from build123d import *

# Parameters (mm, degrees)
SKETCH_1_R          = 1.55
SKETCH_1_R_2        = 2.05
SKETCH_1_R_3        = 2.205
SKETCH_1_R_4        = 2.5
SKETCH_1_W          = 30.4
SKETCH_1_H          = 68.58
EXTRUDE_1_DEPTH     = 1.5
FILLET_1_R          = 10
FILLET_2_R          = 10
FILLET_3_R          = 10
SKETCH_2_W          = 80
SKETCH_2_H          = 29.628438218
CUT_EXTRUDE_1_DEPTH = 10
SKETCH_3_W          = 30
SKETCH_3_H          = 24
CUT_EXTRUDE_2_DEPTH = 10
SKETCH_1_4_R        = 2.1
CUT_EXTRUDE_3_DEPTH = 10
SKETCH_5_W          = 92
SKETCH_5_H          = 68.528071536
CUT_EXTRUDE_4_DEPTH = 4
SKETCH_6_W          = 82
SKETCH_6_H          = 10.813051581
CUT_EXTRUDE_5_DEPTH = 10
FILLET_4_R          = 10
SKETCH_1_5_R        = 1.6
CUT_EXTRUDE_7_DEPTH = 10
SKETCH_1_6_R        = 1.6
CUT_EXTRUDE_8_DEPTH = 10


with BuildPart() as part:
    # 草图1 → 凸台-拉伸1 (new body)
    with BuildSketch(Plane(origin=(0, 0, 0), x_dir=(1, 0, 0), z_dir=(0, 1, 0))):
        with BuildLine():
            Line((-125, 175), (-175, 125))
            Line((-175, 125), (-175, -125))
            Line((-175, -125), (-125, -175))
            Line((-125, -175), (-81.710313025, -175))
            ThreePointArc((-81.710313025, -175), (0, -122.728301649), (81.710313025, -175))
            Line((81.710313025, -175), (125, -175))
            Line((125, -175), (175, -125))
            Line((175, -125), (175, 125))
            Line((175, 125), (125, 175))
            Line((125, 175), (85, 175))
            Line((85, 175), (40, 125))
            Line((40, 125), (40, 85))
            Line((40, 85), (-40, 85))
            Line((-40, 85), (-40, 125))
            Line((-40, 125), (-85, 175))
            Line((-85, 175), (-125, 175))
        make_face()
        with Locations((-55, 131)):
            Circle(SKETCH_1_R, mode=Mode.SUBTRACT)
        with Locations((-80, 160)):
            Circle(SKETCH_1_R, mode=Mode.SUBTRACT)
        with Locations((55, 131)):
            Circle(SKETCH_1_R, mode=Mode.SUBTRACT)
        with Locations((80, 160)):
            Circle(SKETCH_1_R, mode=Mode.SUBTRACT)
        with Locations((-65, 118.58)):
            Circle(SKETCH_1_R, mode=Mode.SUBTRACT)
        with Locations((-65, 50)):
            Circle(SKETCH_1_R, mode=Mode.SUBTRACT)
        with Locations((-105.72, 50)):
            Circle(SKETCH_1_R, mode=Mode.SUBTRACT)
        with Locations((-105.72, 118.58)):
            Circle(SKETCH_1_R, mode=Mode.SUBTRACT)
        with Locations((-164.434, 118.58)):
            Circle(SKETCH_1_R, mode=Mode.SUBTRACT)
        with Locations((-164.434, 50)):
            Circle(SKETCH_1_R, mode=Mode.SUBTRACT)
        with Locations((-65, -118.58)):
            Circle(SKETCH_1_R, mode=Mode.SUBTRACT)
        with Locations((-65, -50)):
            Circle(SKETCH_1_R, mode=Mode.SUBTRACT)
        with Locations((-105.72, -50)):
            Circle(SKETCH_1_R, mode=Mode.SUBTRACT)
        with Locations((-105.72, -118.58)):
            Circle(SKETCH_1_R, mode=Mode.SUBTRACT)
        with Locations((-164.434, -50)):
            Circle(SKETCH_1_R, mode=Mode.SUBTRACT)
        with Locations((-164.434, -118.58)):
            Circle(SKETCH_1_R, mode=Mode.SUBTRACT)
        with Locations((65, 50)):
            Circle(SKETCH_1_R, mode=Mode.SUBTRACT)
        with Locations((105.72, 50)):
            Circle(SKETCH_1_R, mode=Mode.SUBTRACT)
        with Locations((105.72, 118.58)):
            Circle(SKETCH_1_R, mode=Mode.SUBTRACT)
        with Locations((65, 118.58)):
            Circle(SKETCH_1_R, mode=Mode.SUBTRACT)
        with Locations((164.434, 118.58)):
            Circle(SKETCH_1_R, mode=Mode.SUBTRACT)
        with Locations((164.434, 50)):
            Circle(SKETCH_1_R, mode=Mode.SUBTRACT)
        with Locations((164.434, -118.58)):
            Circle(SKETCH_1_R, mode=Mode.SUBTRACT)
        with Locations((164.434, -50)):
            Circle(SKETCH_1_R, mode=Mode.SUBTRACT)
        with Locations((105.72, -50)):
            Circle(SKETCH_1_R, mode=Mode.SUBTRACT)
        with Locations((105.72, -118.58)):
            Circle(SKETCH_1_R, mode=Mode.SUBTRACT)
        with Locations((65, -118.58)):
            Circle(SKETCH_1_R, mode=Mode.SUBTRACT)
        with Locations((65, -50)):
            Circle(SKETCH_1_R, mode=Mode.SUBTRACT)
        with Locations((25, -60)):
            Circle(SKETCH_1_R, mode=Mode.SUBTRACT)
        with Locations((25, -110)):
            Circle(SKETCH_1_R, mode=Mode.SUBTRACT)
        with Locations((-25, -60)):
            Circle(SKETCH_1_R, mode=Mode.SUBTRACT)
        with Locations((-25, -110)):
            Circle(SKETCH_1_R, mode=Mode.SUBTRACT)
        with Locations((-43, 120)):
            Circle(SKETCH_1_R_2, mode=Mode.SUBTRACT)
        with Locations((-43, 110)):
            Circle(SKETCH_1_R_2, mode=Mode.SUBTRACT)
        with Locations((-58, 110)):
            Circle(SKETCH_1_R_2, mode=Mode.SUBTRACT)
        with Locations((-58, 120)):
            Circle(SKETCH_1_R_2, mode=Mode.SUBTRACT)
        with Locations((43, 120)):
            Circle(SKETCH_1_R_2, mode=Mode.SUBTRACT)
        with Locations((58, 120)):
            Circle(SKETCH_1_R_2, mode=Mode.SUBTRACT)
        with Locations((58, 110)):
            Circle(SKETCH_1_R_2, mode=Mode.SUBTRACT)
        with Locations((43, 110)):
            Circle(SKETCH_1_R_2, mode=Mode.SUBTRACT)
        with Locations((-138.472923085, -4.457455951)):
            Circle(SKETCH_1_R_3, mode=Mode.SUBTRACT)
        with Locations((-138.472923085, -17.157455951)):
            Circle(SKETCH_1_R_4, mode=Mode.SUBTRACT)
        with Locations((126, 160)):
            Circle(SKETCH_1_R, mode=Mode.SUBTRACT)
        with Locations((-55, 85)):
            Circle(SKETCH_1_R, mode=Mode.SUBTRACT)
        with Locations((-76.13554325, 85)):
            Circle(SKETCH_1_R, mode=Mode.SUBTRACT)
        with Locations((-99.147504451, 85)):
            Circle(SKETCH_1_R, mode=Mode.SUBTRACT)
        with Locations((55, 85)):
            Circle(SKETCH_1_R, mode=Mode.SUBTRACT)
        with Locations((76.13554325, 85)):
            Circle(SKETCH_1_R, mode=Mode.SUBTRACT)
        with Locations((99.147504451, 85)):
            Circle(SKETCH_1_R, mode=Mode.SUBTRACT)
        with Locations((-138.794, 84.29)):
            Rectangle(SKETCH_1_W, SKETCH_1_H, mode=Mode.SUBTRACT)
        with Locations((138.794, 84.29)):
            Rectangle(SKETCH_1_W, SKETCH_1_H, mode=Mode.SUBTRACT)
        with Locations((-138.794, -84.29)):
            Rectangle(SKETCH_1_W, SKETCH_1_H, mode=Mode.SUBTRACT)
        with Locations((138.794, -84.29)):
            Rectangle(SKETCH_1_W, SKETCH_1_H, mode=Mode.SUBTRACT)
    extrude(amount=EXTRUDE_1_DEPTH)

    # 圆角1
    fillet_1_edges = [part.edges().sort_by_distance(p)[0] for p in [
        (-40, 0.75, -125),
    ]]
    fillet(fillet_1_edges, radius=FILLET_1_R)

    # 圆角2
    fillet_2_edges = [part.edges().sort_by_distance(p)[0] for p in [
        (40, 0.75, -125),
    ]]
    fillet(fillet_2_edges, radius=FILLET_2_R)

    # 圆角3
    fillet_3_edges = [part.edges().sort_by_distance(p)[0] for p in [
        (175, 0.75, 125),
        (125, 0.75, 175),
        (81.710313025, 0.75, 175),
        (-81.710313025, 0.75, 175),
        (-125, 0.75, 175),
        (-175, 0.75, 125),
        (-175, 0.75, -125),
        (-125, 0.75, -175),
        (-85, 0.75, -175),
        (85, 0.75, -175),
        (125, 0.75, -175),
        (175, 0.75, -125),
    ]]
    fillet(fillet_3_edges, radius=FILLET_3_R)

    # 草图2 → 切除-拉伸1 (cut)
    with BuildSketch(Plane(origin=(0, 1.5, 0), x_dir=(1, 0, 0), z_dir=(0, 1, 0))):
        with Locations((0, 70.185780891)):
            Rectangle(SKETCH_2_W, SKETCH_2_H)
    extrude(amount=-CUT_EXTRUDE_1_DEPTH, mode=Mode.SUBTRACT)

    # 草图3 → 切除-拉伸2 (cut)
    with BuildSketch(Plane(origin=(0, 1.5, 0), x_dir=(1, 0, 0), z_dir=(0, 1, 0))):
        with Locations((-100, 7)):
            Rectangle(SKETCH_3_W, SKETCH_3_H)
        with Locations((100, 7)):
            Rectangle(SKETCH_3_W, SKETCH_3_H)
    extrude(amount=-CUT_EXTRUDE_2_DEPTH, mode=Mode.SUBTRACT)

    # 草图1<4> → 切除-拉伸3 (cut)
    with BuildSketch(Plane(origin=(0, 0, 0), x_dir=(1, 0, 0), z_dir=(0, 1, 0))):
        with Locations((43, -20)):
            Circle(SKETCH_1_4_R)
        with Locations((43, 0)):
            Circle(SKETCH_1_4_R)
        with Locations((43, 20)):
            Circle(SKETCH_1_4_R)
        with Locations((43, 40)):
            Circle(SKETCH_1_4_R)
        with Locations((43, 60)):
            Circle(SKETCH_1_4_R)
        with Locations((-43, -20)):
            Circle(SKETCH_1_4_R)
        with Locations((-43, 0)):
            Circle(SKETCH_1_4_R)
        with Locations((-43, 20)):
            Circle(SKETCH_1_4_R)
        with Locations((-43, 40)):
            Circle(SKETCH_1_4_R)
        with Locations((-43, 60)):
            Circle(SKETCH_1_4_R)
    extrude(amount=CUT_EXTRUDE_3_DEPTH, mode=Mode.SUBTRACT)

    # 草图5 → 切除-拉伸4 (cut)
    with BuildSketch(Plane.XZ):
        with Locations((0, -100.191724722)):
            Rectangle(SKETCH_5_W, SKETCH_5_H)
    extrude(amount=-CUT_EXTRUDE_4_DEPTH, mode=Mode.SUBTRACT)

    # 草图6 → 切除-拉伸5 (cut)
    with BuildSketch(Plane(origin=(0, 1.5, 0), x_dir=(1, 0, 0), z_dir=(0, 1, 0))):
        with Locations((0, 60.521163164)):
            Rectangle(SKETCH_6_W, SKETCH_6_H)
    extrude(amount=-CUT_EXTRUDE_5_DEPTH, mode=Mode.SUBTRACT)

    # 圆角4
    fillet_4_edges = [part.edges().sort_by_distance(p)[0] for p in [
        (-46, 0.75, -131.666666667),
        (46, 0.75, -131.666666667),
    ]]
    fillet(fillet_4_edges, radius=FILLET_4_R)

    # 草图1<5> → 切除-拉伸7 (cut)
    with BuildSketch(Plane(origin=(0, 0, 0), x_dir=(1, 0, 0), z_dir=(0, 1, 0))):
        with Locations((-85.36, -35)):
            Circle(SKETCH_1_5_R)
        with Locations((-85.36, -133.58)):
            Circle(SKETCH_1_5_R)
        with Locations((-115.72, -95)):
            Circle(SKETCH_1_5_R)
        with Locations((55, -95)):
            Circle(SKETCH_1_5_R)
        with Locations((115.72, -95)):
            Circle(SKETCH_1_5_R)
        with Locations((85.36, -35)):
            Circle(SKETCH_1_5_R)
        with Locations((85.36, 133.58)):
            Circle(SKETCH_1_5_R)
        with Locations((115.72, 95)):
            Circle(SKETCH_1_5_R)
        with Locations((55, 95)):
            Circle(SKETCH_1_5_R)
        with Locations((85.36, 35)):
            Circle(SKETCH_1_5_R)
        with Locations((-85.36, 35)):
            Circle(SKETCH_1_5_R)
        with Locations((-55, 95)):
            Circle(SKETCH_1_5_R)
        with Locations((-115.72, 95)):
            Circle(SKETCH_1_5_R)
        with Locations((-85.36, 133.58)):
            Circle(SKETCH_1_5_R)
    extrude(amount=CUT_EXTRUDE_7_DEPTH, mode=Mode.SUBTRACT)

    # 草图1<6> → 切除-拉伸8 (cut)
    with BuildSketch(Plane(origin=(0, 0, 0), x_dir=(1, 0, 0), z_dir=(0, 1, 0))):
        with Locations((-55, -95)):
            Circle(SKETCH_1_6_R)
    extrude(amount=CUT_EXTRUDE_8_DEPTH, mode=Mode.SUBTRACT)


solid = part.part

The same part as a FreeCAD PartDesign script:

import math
import FreeCAD as App
import Part
import Sketcher

V = App.Vector


def edges_at(feature, points):
    """Names of the edges that pass closest to the given points."""
    edges = feature.Shape.Edges
    near = lambda p: min(range(len(edges)), key=lambda i: edges[i].distToShape(Part.Vertex(*p))[0])
    return sorted({f"Edge{near(p) + 1}" for p in points})


def add_polygon(sketch, points):
    """Adds a closed chain of lines whose ends are joined by coincident constraints."""
    first, n = sketch.GeometryCount, len(points)
    for a, b in zip(points, points[1:] + points[:1]):
        sketch.addGeometry(Part.LineSegment(App.Vector(*a, 0), App.Vector(*b, 0)), False)
    for i in range(n):
        sketch.addConstraint(Sketcher.Constraint("Coincident", first + i, 2, first + (i + 1) % n, 1))

doc = App.newDocument("Part")
body = doc.addObject("PartDesign::Body", "Body")

# Sketch on XZ plane
sketch1 = body.newObject("Sketcher::SketchObject", "Sketch")
sketch1.AttachmentSupport = (doc.getObject("XZ_Plane"), [""])
sketch1.MapMode = "FlatFace"
sketch1.addGeometry(Part.LineSegment(V(-125, -175, 0), V(-175, -125, 0)), False)  # 0
sketch1.addGeometry(Part.LineSegment(V(-175, -125, 0), V(-175, 125, 0)), False)  # 1
sketch1.addGeometry(Part.LineSegment(V(-175, 125, 0), V(-125, 175, 0)), False)  # 2
sketch1.addGeometry(Part.LineSegment(V(-125, 175, 0), V(-81.7, 175, 0)), False)  # 3
sketch1.addGeometry(Part.ArcOfCircle(Part.Circle(V(0, 212.7, 0), V(0, 0, 1), 90), math.radians(-155), math.radians(-25)), False)  # 4
sketch1.addGeometry(Part.LineSegment(V(81.7, 175, 0), V(125, 175, 0)), False)  # 5
sketch1.addGeometry(Part.LineSegment(V(125, 175, 0), V(175, 125, 0)), False)  # 6
sketch1.addGeometry(Part.LineSegment(V(175, 125, 0), V(175, -125, 0)), False)  # 7
sketch1.addGeometry(Part.LineSegment(V(175, -125, 0), V(125, -175, 0)), False)  # 8
sketch1.addGeometry(Part.LineSegment(V(125, -175, 0), V(85, -175, 0)), False)  # 9
sketch1.addGeometry(Part.LineSegment(V(85, -175, 0), V(40, -125, 0)), False)  # 10
sketch1.addGeometry(Part.LineSegment(V(40, -125, 0), V(40, -85, 0)), False)  # 11
sketch1.addGeometry(Part.LineSegment(V(40, -85, 0), V(-40, -85, 0)), False)  # 12
sketch1.addGeometry(Part.LineSegment(V(-40, -85, 0), V(-40, -125, 0)), False)  # 13
sketch1.addGeometry(Part.LineSegment(V(-40, -125, 0), V(-85, -175, 0)), False)  # 14
sketch1.addGeometry(Part.LineSegment(V(-85, -175, 0), V(-125, -175, 0)), False)  # 15
sketch1.addGeometry(Part.Circle(V(-164.4, 118.6, 0), V(0, 0, 1), 1.6), False)  # 16
sketch1.addGeometry(Part.Circle(V(-105.7, 118.6, 0), V(0, 0, 1), 1.6), False)  # 17
add_polygon(sketch1, [(-123.6, 118.6), (-154, 118.6), (-154, 50), (-123.6, 50)])  # lines 18-21
sketch1.addGeometry(Part.Circle(V(-164.4, 50, 0), V(0, 0, 1), 1.6), False)  # 22
sketch1.addGeometry(Part.Circle(V(-105.7, 50, 0), V(0, 0, 1), 1.6), False)  # 23
sketch1.addGeometry(Part.Circle(V(-65, 118.6, 0), V(0, 0, 1), 1.6), False)  # 24
sketch1.addGeometry(Part.Circle(V(-25, 110, 0), V(0, 0, 1), 1.6), False)  # 25
sketch1.addGeometry(Part.Circle(V(-65, 50, 0), V(0, 0, 1), 1.6), False)  # 26
sketch1.addGeometry(Part.Circle(V(-25, 60, 0), V(0, 0, 1), 1.6), False)  # 27
sketch1.addGeometry(Part.Circle(V(-138.5, 17.2, 0), V(0, 0, 1), 2.5), False)  # 28
sketch1.addGeometry(Part.Circle(V(-138.5, 4.5, 0), V(0, 0, 1), 2.2), False)  # 29
sketch1.addGeometry(Part.Circle(V(25, 110, 0), V(0, 0, 1), 1.6), False)  # 30
sketch1.addGeometry(Part.Circle(V(65, 118.6, 0), V(0, 0, 1), 1.6), False)  # 31
sketch1.addGeometry(Part.Circle(V(25, 60, 0), V(0, 0, 1), 1.6), False)  # 32
sketch1.addGeometry(Part.Circle(V(65, 50, 0), V(0, 0, 1), 1.6), False)  # 33
sketch1.addGeometry(Part.Circle(V(105.7, 118.6, 0), V(0, 0, 1), 1.6), False)  # 34
sketch1.addGeometry(Part.Circle(V(164.4, 118.6, 0), V(0, 0, 1), 1.6), False)  # 35
sketch1.addGeometry(Part.Circle(V(105.7, 50, 0), V(0, 0, 1), 1.6), False)  # 36
add_polygon(sketch1, [(154, 118.6), (123.6, 118.6), (123.6, 50), (154, 50)])  # lines 37-40
sketch1.addGeometry(Part.Circle(V(164.4, 50, 0), V(0, 0, 1), 1.6), False)  # 41
sketch1.addGeometry(Part.Circle(V(-164.4, -50, 0), V(0, 0, 1), 1.6), False)  # 42
sketch1.addGeometry(Part.Circle(V(-105.7, -50, 0), V(0, 0, 1), 1.6), False)  # 43
add_polygon(sketch1, [(-123.6, -50), (-154, -50), (-154, -118.6), (-123.6, -118.6)])  # lines 44-47
sketch1.addGeometry(Part.Circle(V(-99.1, -85, 0), V(0, 0, 1), 1.6), False)  # 48
sketch1.addGeometry(Part.Circle(V(-65, -50, 0), V(0, 0, 1), 1.6), False)  # 49
sketch1.addGeometry(Part.Circle(V(-76.1, -85, 0), V(0, 0, 1), 1.6), False)  # 50
sketch1.addGeometry(Part.Circle(V(-55, -85, 0), V(0, 0, 1), 1.6), False)  # 51
sketch1.addGeometry(Part.Circle(V(-164.4, -118.6, 0), V(0, 0, 1), 1.6), False)  # 52
sketch1.addGeometry(Part.Circle(V(-105.7, -118.6, 0), V(0, 0, 1), 1.6), False)  # 53
sketch1.addGeometry(Part.Circle(V(-65, -118.6, 0), V(0, 0, 1), 1.6), False)  # 54
sketch1.addGeometry(Part.Circle(V(-58, -110, 0), V(0, 0, 1), 2), False)  # 55
sketch1.addGeometry(Part.Circle(V(-43, -110, 0), V(0, 0, 1), 2), False)  # 56
sketch1.addGeometry(Part.Circle(V(-58, -120, 0), V(0, 0, 1), 2), False)  # 57
sketch1.addGeometry(Part.Circle(V(-43, -120, 0), V(0, 0, 1), 2), False)  # 58
sketch1.addGeometry(Part.Circle(V(-55, -131, 0), V(0, 0, 1), 1.6), False)  # 59
sketch1.addGeometry(Part.Circle(V(-80, -160, 0), V(0, 0, 1), 1.6), False)  # 60
sketch1.addGeometry(Part.Circle(V(65, -50, 0), V(0, 0, 1), 1.6), False)  # 61
sketch1.addGeometry(Part.Circle(V(55, -85, 0), V(0, 0, 1), 1.6), False)  # 62
sketch1.addGeometry(Part.Circle(V(76.1, -85, 0), V(0, 0, 1), 1.6), False)  # 63
sketch1.addGeometry(Part.Circle(V(105.7, -50, 0), V(0, 0, 1), 1.6), False)  # 64
sketch1.addGeometry(Part.Circle(V(164.4, -50, 0), V(0, 0, 1), 1.6), False)  # 65
sketch1.addGeometry(Part.Circle(V(99.1, -85, 0), V(0, 0, 1), 1.6), False)  # 66
add_polygon(sketch1, [(154, -50), (123.6, -50), (123.6, -118.6), (154, -118.6)])  # lines 67-70
sketch1.addGeometry(Part.Circle(V(43, -110, 0), V(0, 0, 1), 2), False)  # 71
sketch1.addGeometry(Part.Circle(V(58, -110, 0), V(0, 0, 1), 2), False)  # 72
sketch1.addGeometry(Part.Circle(V(43, -120, 0), V(0, 0, 1), 2), False)  # 73
sketch1.addGeometry(Part.Circle(V(58, -120, 0), V(0, 0, 1), 2), False)  # 74
sketch1.addGeometry(Part.Circle(V(65, -118.6, 0), V(0, 0, 1), 1.6), False)  # 75
sketch1.addGeometry(Part.Circle(V(55, -131, 0), V(0, 0, 1), 1.6), False)  # 76
sketch1.addGeometry(Part.Circle(V(80, -160, 0), V(0, 0, 1), 1.6), False)  # 77
sketch1.addGeometry(Part.Circle(V(105.7, -118.6, 0), V(0, 0, 1), 1.6), False)  # 78
sketch1.addGeometry(Part.Circle(V(164.4, -118.6, 0), V(0, 0, 1), 1.6), False)  # 79
sketch1.addGeometry(Part.Circle(V(126, -160, 0), V(0, 0, 1), 1.6), False)  # 80
sketch1.addConstraint(Sketcher.Constraint("Coincident", 0, 2, 1, 1))
sketch1.addConstraint(Sketcher.Constraint("Coincident", 1, 2, 2, 1))
sketch1.addConstraint(Sketcher.Constraint("Coincident", 2, 2, 3, 1))
sketch1.addConstraint(Sketcher.Constraint("Coincident", 3, 2, 4, 1))
sketch1.addConstraint(Sketcher.Constraint("Coincident", 4, 2, 5, 1))
sketch1.addConstraint(Sketcher.Constraint("Coincident", 5, 2, 6, 1))
sketch1.addConstraint(Sketcher.Constraint("Coincident", 6, 2, 7, 1))
sketch1.addConstraint(Sketcher.Constraint("Coincident", 7, 2, 8, 1))
sketch1.addConstraint(Sketcher.Constraint("Coincident", 8, 2, 9, 1))
sketch1.addConstraint(Sketcher.Constraint("Coincident", 9, 2, 10, 1))
sketch1.addConstraint(Sketcher.Constraint("Coincident", 10, 2, 11, 1))
sketch1.addConstraint(Sketcher.Constraint("Coincident", 11, 2, 12, 1))
sketch1.addConstraint(Sketcher.Constraint("Coincident", 12, 2, 13, 1))
sketch1.addConstraint(Sketcher.Constraint("Coincident", 13, 2, 14, 1))
sketch1.addConstraint(Sketcher.Constraint("Coincident", 14, 2, 15, 1))
sketch1.addConstraint(Sketcher.Constraint("Coincident", 15, 2, 0, 1))
sketch1.addConstraint(Sketcher.Constraint("Vertical", 1))
sketch1.addConstraint(Sketcher.Constraint("Horizontal", 3))
sketch1.addConstraint(Sketcher.Constraint("Horizontal", 5))
sketch1.addConstraint(Sketcher.Constraint("Vertical", 7))
sketch1.addConstraint(Sketcher.Constraint("Horizontal", 9))
sketch1.addConstraint(Sketcher.Constraint("Vertical", 11))
sketch1.addConstraint(Sketcher.Constraint("Horizontal", 12))
sketch1.addConstraint(Sketcher.Constraint("Vertical", 13))
sketch1.addConstraint(Sketcher.Constraint("Horizontal", 15))
sketch1.addConstraint(Sketcher.Constraint("Horizontal", 18))
sketch1.addConstraint(Sketcher.Constraint("Vertical", 19))
sketch1.addConstraint(Sketcher.Constraint("Horizontal", 20))
sketch1.addConstraint(Sketcher.Constraint("Vertical", 21))
sketch1.addConstraint(Sketcher.Constraint("Horizontal", 37))
sketch1.addConstraint(Sketcher.Constraint("Vertical", 38))
sketch1.addConstraint(Sketcher.Constraint("Horizontal", 39))
sketch1.addConstraint(Sketcher.Constraint("Vertical", 40))
sketch1.addConstraint(Sketcher.Constraint("Horizontal", 44))
sketch1.addConstraint(Sketcher.Constraint("Vertical", 45))
sketch1.addConstraint(Sketcher.Constraint("Horizontal", 46))
sketch1.addConstraint(Sketcher.Constraint("Vertical", 47))
sketch1.addConstraint(Sketcher.Constraint("Horizontal", 67))
sketch1.addConstraint(Sketcher.Constraint("Vertical", 68))
sketch1.addConstraint(Sketcher.Constraint("Horizontal", 69))
sketch1.addConstraint(Sketcher.Constraint("Vertical", 70))
sketch1.addConstraint(Sketcher.Constraint("Equal", 16, 17))
sketch1.addConstraint(Sketcher.Constraint("Equal", 17, 22))
sketch1.addConstraint(Sketcher.Constraint("Equal", 22, 23))
sketch1.addConstraint(Sketcher.Constraint("Equal", 23, 24))
sketch1.addConstraint(Sketcher.Constraint("Equal", 24, 25))
sketch1.addConstraint(Sketcher.Constraint("Equal", 25, 26))
sketch1.addConstraint(Sketcher.Constraint("Equal", 26, 27))
sketch1.addConstraint(Sketcher.Constraint("Equal", 27, 30))
sketch1.addConstraint(Sketcher.Constraint("Equal", 30, 31))
sketch1.addConstraint(Sketcher.Constraint("Equal", 31, 32))
sketch1.addConstraint(Sketcher.Constraint("Equal", 32, 33))
sketch1.addConstraint(Sketcher.Constraint("Equal", 33, 34))
sketch1.addConstraint(Sketcher.Constraint("Equal", 34, 35))
sketch1.addConstraint(Sketcher.Constraint("Equal", 35, 36))
sketch1.addConstraint(Sketcher.Constraint("Equal", 36, 41))
sketch1.addConstraint(Sketcher.Constraint("Equal", 41, 42))
sketch1.addConstraint(Sketcher.Constraint("Equal", 42, 43))
sketch1.addConstraint(Sketcher.Constraint("Equal", 43, 48))
sketch1.addConstraint(Sketcher.Constraint("Equal", 48, 49))
sketch1.addConstraint(Sketcher.Constraint("Equal", 49, 50))
sketch1.addConstraint(Sketcher.Constraint("Equal", 50, 51))
sketch1.addConstraint(Sketcher.Constraint("Equal", 51, 52))
sketch1.addConstraint(Sketcher.Constraint("Equal", 52, 53))
sketch1.addConstraint(Sketcher.Constraint("Equal", 53, 54))
sketch1.addConstraint(Sketcher.Constraint("Equal", 55, 56))
sketch1.addConstraint(Sketcher.Constraint("Equal", 56, 57))
sketch1.addConstraint(Sketcher.Constraint("Equal", 57, 58))
sketch1.addConstraint(Sketcher.Constraint("Equal", 54, 59))
sketch1.addConstraint(Sketcher.Constraint("Equal", 59, 60))
sketch1.addConstraint(Sketcher.Constraint("Equal", 60, 61))
sketch1.addConstraint(Sketcher.Constraint("Equal", 61, 62))
sketch1.addConstraint(Sketcher.Constraint("Equal", 62, 63))
sketch1.addConstraint(Sketcher.Constraint("Equal", 63, 64))
sketch1.addConstraint(Sketcher.Constraint("Equal", 64, 65))
sketch1.addConstraint(Sketcher.Constraint("Equal", 65, 66))
sketch1.addConstraint(Sketcher.Constraint("Equal", 58, 71))
sketch1.addConstraint(Sketcher.Constraint("Equal", 71, 72))
sketch1.addConstraint(Sketcher.Constraint("Equal", 72, 73))
sketch1.addConstraint(Sketcher.Constraint("Equal", 73, 74))
sketch1.addConstraint(Sketcher.Constraint("Equal", 66, 75))
sketch1.addConstraint(Sketcher.Constraint("Equal", 75, 76))
sketch1.addConstraint(Sketcher.Constraint("Equal", 76, 77))
sketch1.addConstraint(Sketcher.Constraint("Equal", 77, 78))
sketch1.addConstraint(Sketcher.Constraint("Equal", 78, 79))
sketch1.addConstraint(Sketcher.Constraint("Equal", 79, 80))
sketch1.addConstraint(Sketcher.Constraint("Symmetric", 41, 3, 42, 3, -1, 1))
sketch1.addConstraint(Sketcher.Constraint("Symmetric", 36, 3, 43, 3, -1, 1))
sketch1.addConstraint(Sketcher.Constraint("Symmetric", 33, 3, 49, 3, -1, 1))
sketch1.addConstraint(Sketcher.Constraint("Symmetric", 35, 3, 52, 3, -1, 1))
sketch1.addConstraint(Sketcher.Constraint("Symmetric", 34, 3, 53, 3, -1, 1))
sketch1.addConstraint(Sketcher.Constraint("Symmetric", 31, 3, 54, 3, -1, 1))
sketch1.addConstraint(Sketcher.Constraint("Symmetric", 26, 3, 61, 3, -1, 1))
sketch1.addConstraint(Sketcher.Constraint("Symmetric", 23, 3, 64, 3, -1, 1))
sketch1.addConstraint(Sketcher.Constraint("Symmetric", 22, 3, 65, 3, -1, 1))
sketch1.addConstraint(Sketcher.Constraint("Symmetric", 24, 3, 75, 3, -1, 1))
sketch1.addConstraint(Sketcher.Constraint("Symmetric", 17, 3, 78, 3, -1, 1))
sketch1.addConstraint(Sketcher.Constraint("Symmetric", 16, 3, 79, 3, -1, 1))
sketch1.addConstraint(Sketcher.Constraint("Symmetric", 0, 2, 6, 2, -1, 1))
sketch1.addConstraint(Sketcher.Constraint("Symmetric", 2, 2, 8, 2, -1, 1))
sketch1.addConstraint(Sketcher.Constraint("Symmetric", 5, 2, 15, 2, -1, 1))
sketch1.addConstraint(Sketcher.Constraint("Symmetric", 39, 2, 44, 2, -1, 1))
sketch1.addConstraint(Sketcher.Constraint("Symmetric", 37, 2, 46, 2, -1, 1))
sketch1.addConstraint(Sketcher.Constraint("Symmetric", 20, 2, 67, 2, -1, 1))
sketch1.addConstraint(Sketcher.Constraint("Symmetric", 18, 2, 69, 2, -1, 1))
sketch1.addConstraint(Sketcher.Constraint("Symmetric", 25, 3, 30, 3, -2))
sketch1.addConstraint(Sketcher.Constraint("Symmetric", 24, 3, 31, 3, -2))
sketch1.addConstraint(Sketcher.Constraint("Symmetric", 27, 3, 32, 3, -2))
sketch1.addConstraint(Sketcher.Constraint("Symmetric", 26, 3, 33, 3, -2))
sketch1.addConstraint(Sketcher.Constraint("Symmetric", 17, 3, 34, 3, -2))
sketch1.addConstraint(Sketcher.Constraint("Symmetric", 16, 3, 35, 3, -2))
sketch1.addConstraint(Sketcher.Constraint("Symmetric", 23, 3, 36, 3, -2))
sketch1.addConstraint(Sketcher.Constraint("Symmetric", 22, 3, 41, 3, -2))
sketch1.addConstraint(Sketcher.Constraint("Symmetric", 51, 3, 62, 3, -2))
sketch1.addConstraint(Sketcher.Constraint("Symmetric", 50, 3, 63, 3, -2))
sketch1.addConstraint(Sketcher.Constraint("Symmetric", 48, 3, 66, 3, -2))
sketch1.addConstraint(Sketcher.Constraint("Symmetric", 56, 3, 71, 3, -2))
sketch1.addConstraint(Sketcher.Constraint("Symmetric", 55, 3, 72, 3, -2))
sketch1.addConstraint(Sketcher.Constraint("Symmetric", 58, 3, 73, 3, -2))
sketch1.addConstraint(Sketcher.Constraint("Symmetric", 57, 3, 74, 3, -2))
sketch1.addConstraint(Sketcher.Constraint("Symmetric", 59, 3, 76, 3, -2))
sketch1.addConstraint(Sketcher.Constraint("Symmetric", 60, 3, 77, 3, -2))
sketch1.addConstraint(Sketcher.Constraint("Symmetric", 3, 2, 4, 2, -2))
sketch1.addConstraint(Sketcher.Constraint("Symmetric", 10, 2, 13, 2, -2))
sketch1.addConstraint(Sketcher.Constraint("Symmetric", 21, 2, 37, 2, -2))
sketch1.addConstraint(Sketcher.Constraint("Symmetric", 19, 2, 39, 2, -2))
sketch1.addConstraint(Sketcher.Constraint("Perpendicular", 0, 2))
sketch1.addConstraint(Sketcher.Constraint("Perpendicular", 6, 8))
sketch1.addConstraint(Sketcher.Constraint("Horizontal", 16, 3, 17, 3))
sketch1.addConstraint(Sketcher.Constraint("Horizontal", 22, 3, 23, 3))
sketch1.addConstraint(Sketcher.Constraint("Horizontal", 17, 3, 24, 3))
sketch1.addConstraint(Sketcher.Constraint("Horizontal", 23, 3, 26, 3))
sketch1.addConstraint(Sketcher.Constraint("Horizontal", 48, 3, 50, 3))
sketch1.addConstraint(Sketcher.Constraint("Horizontal", 50, 3, 51, 3))
sketch1.addConstraint(Sketcher.Constraint("Horizontal", 55, 3, 56, 3))
sketch1.addConstraint(Sketcher.Constraint("Horizontal", 57, 3, 58, 3))
sketch1.addConstraint(Sketcher.Constraint("Horizontal", 77, 3, 80, 3))
sketch1.addConstraint(Sketcher.Constraint("Horizontal", 1, 2, 6, 2))
sketch1.addConstraint(Sketcher.Constraint("Horizontal", 7, 2, 10, 2))
sketch1.addConstraint(Sketcher.Constraint("Horizontal", 66, 3, 11, 2))
sketch1.addConstraint(Sketcher.Constraint("Horizontal", 35, 3, 18, 2))
sketch1.addConstraint(Sketcher.Constraint("Horizontal", 41, 3, 19, 2))
sketch1.addConstraint(Sketcher.Constraint("Vertical", 16, 3, 22, 3))
sketch1.addConstraint(Sketcher.Constraint("Vertical", 17, 3, 23, 3))
sketch1.addConstraint(Sketcher.Constraint("Vertical", 24, 3, 26, 3))
sketch1.addConstraint(Sketcher.Constraint("Vertical", 25, 3, 27, 3))
sketch1.addConstraint(Sketcher.Constraint("Vertical", 28, 3, 29, 3))
sketch1.addConstraint(Sketcher.Constraint("Vertical", 55, 3, 57, 3))
sketch1.addConstraint(Sketcher.Constraint("Vertical", 56, 3, 58, 3))
sketch1.addConstraint(Sketcher.Constraint("Vertical", 51, 3, 59, 3))
sketch1.addConstraint(Sketcher.Constraint("Vertical", 5, 2, 8, 2))
sketch1.addConstraint(Sketcher.Constraint("Equal", 9, 15))
sketch1.addConstraint(Sketcher.Constraint("Equal", 15, 11))
sketch1.addConstraint(Sketcher.Constraint("Diameter", 28, 5.0))
sketch1.addConstraint(Sketcher.Constraint("Radius", 4, 90.0))
sketch1.addConstraint(Sketcher.Constraint("Diameter", 16, 3.1))
sketch1.addConstraint(Sketcher.Constraint("Diameter", 55, 4.1))
sketch1.addConstraint(Sketcher.Constraint("Diameter", 29, 4.41))
sketch1.addConstraint(Sketcher.Constraint("DistanceX", 9, 2, 9, 1, 40.0))
sketch1.addConstraint(Sketcher.Constraint("DistanceX", 12, 2, 12, 1, 80.0))
sketch1.addConstraint(Sketcher.Constraint("DistanceY", 1, 1, 1, 2, 250.0))
sketch1.addConstraint(Sketcher.Constraint("DistanceX", 18, 2, 18, 1, 30.4))
sketch1.addConstraint(Sketcher.Constraint("DistanceY", -1, 1, 22, 3, 50.0))
sketch1.addConstraint(Sketcher.Constraint("DistanceX", 24, 3, -1, 1, 65.0))
sketch1.addConstraint(Sketcher.Constraint("DistanceX", 25, 3, -1, 1, 25.0))
sketch1.addConstraint(Sketcher.Constraint("DistanceY", -1, 1, 25, 3, 110.0))
sketch1.addConstraint(Sketcher.Constraint("DistanceY", -1, 1, 27, 3, 60.0))
sketch1.addConstraint(Sketcher.Constraint("DistanceX", 51, 3, -1, 1, 55.0))
sketch1.addConstraint(Sketcher.Constraint("DistanceX", 55, 3, -1, 1, 58.0))
sketch1.addConstraint(Sketcher.Constraint("DistanceY", 55, 3, -1, 1, 110.0))
sketch1.addConstraint(Sketcher.Constraint("DistanceX", 56, 3, -1, 1, 43.0))
sketch1.addConstraint(Sketcher.Constraint("DistanceY", 57, 3, -1, 1, 120.0))
sketch1.addConstraint(Sketcher.Constraint("DistanceY", 59, 3, -1, 1, 131.0))
sketch1.addConstraint(Sketcher.Constraint("DistanceX", 60, 3, -1, 1, 80.0))
sketch1.addConstraint(Sketcher.Constraint("DistanceY", 60, 3, -1, 1, 160.0))
sketch1.addConstraint(Sketcher.Constraint("DistanceX", -1, 1, 80, 3, 126.0))
sketch1.addConstraint(Sketcher.Constraint("DistanceX", 0, 2, -1, 1, 175.0))
sketch1.addConstraint(Sketcher.Constraint("DistanceX", 2, 2, -1, 1, 125.0))
sketch1.addConstraint(Sketcher.Constraint("DistanceY", 19, 2, 19, 1, 68.58))
sketch1.addConstraint(Sketcher.Constraint("DistanceX", 17, 3, -1, 1, 105.72))
sketch1.addConstraint(Sketcher.Constraint("DistanceX", 16, 3, -1, 1, 164.434))
sketch1.addConstraint(Sketcher.Constraint("DistanceX", 18, 2, -1, 1, 153.994))
sketch1.addConstraint(Sketcher.Constraint("DistanceY", -1, 1, 4, 3, 212.728302))
sketch1.addConstraint(Sketcher.Constraint("DistanceX", 28, 3, -1, 1, 138.472923))
sketch1.addConstraint(Sketcher.Constraint("DistanceY", -1, 1, 28, 3, 17.157456))
sketch1.addConstraint(Sketcher.Constraint("DistanceY", -1, 1, 29, 3, 4.457456))
sketch1.addConstraint(Sketcher.Constraint("DistanceX", 48, 3, -1, 1, 99.147504))
sketch1.addConstraint(Sketcher.Constraint("DistanceX", 50, 3, -1, 1, 76.135543))
pad1 = body.newObject("PartDesign::Pad", "Pad")
pad1.Profile = sketch1
pad1.Length = 1.5
pad1.Reversed = True
doc.recompute()

fillet = body.newObject("PartDesign::Fillet", "Fillet")
fillet.Base = (pad1, edges_at(pad1, [(-40, 0.75, -125)]))
fillet.Radius = 10
doc.recompute()

fillet2 = body.newObject("PartDesign::Fillet", "Fillet001")
fillet2.Base = (fillet, edges_at(fillet, [(40, 0.75, -125)]))
fillet2.Radius = 10
doc.recompute()

fillet3 = body.newObject("PartDesign::Fillet", "Fillet002")
fillet3.Base = (fillet2, edges_at(fillet2, [
    (175, 0.75, 125),
    (125, 0.75, 175),
    (81.71, 0.75, 175),
    (-81.71, 0.75, 175),
    (-125, 0.75, 175),
    (-175, 0.75, 125),
    (-175, 0.75, -125),
    (-125, 0.75, -175),
    (-85, 0.75, -175),
    (85, 0.75, -175),
    (125, 0.75, -175),
    (175, 0.75, -125),
]))
fillet3.Radius = 10

# Sketch on XZ plane
sketch2 = body.newObject("Sketcher::SketchObject", "Sketch001")
sketch2.AttachmentSupport = (doc.getObject("XZ_Plane"), [""])
sketch2.MapMode = "FlatFace"
sketch2.AttachmentOffset = App.Placement(V(0, 0, -1.5), App.Rotation())
add_polygon(sketch2, [(-40, -85), (-40, -55), (40, -55), (40, -85)])  # lines 0-3
sketch2.addConstraint(Sketcher.Constraint("Vertical", 0))
sketch2.addConstraint(Sketcher.Constraint("Horizontal", 1))
sketch2.addConstraint(Sketcher.Constraint("Vertical", 2))
sketch2.addConstraint(Sketcher.Constraint("Horizontal", 3))
sketch2.addConstraint(Sketcher.Constraint("DistanceX", 1, 1, 1, 2, 80.0))
sketch2.addConstraint(Sketcher.Constraint("DistanceX", 0, 2, -1, 1, 40.0))
sketch2.addConstraint(Sketcher.Constraint("DistanceY", 2, 2, -1, 1, 85.0))
sketch2.addConstraint(Sketcher.Constraint("DistanceY", 0, 1, 0, 2, 29.628438))
pocket1 = body.newObject("PartDesign::Pocket", "Pocket")
pocket1.Profile = sketch2
pocket1.Length = 10
pocket1.Reversed = True

# Sketch on XZ plane
sketch3 = body.newObject("Sketcher::SketchObject", "Sketch002")
sketch3.AttachmentSupport = (doc.getObject("XZ_Plane"), [""])
sketch3.MapMode = "FlatFace"
sketch3.AttachmentOffset = App.Placement(V(0, 0, -1.5), App.Rotation())
add_polygon(sketch3, [(-115, -19), (-115, 5), (-85, 5), (-85, -19)])  # lines 0-3
add_polygon(sketch3, [(85, -19), (85, 5), (115, 5), (115, -19)])  # lines 4-7
sketch3.addConstraint(Sketcher.Constraint("Vertical", 0))
sketch3.addConstraint(Sketcher.Constraint("Horizontal", 1))
sketch3.addConstraint(Sketcher.Constraint("Vertical", 2))
sketch3.addConstraint(Sketcher.Constraint("Horizontal", 3))
sketch3.addConstraint(Sketcher.Constraint("Vertical", 4))
sketch3.addConstraint(Sketcher.Constraint("Horizontal", 5))
sketch3.addConstraint(Sketcher.Constraint("Vertical", 6))
sketch3.addConstraint(Sketcher.Constraint("Horizontal", 7))
sketch3.addConstraint(Sketcher.Constraint("Symmetric", 1, 2, 4, 2, -2))
sketch3.addConstraint(Sketcher.Constraint("Symmetric", 3, 2, 6, 2, -2))
sketch3.addConstraint(Sketcher.Constraint("DistanceX", 1, 1, 1, 2, 30.0))
sketch3.addConstraint(Sketcher.Constraint("DistanceY", 0, 1, 0, 2, 24.0))
sketch3.addConstraint(Sketcher.Constraint("DistanceX", 0, 2, -1, 1, 115.0))
sketch3.addConstraint(Sketcher.Constraint("DistanceY", -1, 1, 0, 2, 5.0))
pocket2 = body.newObject("PartDesign::Pocket", "Pocket001")
pocket2.Profile = sketch3
pocket2.Length = 10
pocket2.Reversed = True

# Sketch on XZ plane
sketch4 = body.newObject("Sketcher::SketchObject", "Sketch003")
sketch4.AttachmentSupport = (doc.getObject("XZ_Plane"), [""])
sketch4.MapMode = "FlatFace"
sketch4.addGeometry(Part.Circle(V(43, 20, 0), V(0, 0, 1), 2.1), False)
sketch4.addGeometry(Part.Circle(V(43, 0, 0), V(0, 0, 1), 2.1), False)
sketch4.addGeometry(Part.Circle(V(43, -20, 0), V(0, 0, 1), 2.1), False)
sketch4.addGeometry(Part.Circle(V(43, -40, 0), V(0, 0, 1), 2.1), False)
sketch4.addGeometry(Part.Circle(V(43, -60, 0), V(0, 0, 1), 2.1), False)
sketch4.addGeometry(Part.Circle(V(-43, 20, 0), V(0, 0, 1), 2.1), False)
sketch4.addGeometry(Part.Circle(V(-43, 0, 0), V(0, 0, 1), 2.1), False)
sketch4.addGeometry(Part.Circle(V(-43, -20, 0), V(0, 0, 1), 2.1), False)
sketch4.addGeometry(Part.Circle(V(-43, -40, 0), V(0, 0, 1), 2.1), False)
sketch4.addGeometry(Part.Circle(V(-43, -60, 0), V(0, 0, 1), 2.1), False)
sketch4.addConstraint(Sketcher.Constraint("Equal", 0, 1))
sketch4.addConstraint(Sketcher.Constraint("Equal", 1, 2))
sketch4.addConstraint(Sketcher.Constraint("Equal", 2, 3))
sketch4.addConstraint(Sketcher.Constraint("Equal", 3, 4))
sketch4.addConstraint(Sketcher.Constraint("Equal", 4, 5))
sketch4.addConstraint(Sketcher.Constraint("Equal", 5, 6))
sketch4.addConstraint(Sketcher.Constraint("Equal", 6, 7))
sketch4.addConstraint(Sketcher.Constraint("Equal", 7, 8))
sketch4.addConstraint(Sketcher.Constraint("Equal", 8, 9))
sketch4.addConstraint(Sketcher.Constraint("Symmetric", 2, 3, 5, 3, -1, 1))
sketch4.addConstraint(Sketcher.Constraint("Symmetric", 1, 3, 6, 3, -1, 1))
sketch4.addConstraint(Sketcher.Constraint("Symmetric", 0, 3, 7, 3, -1, 1))
sketch4.addConstraint(Sketcher.Constraint("Symmetric", 0, 3, 5, 3, -2))
sketch4.addConstraint(Sketcher.Constraint("Symmetric", 3, 3, 8, 3, -2))
sketch4.addConstraint(Sketcher.Constraint("Symmetric", 4, 3, 9, 3, -2))
sketch4.addConstraint(Sketcher.Constraint("PointOnObject", 1, 3, -1))
sketch4.addConstraint(Sketcher.Constraint("Vertical", 0, 3, 1, 3))
sketch4.addConstraint(Sketcher.Constraint("Vertical", 2, 3, 3, 3))
sketch4.addConstraint(Sketcher.Constraint("Vertical", 3, 3, 4, 3))
sketch4.addConstraint(Sketcher.Constraint("Diameter", 0, 4.2))
sketch4.addConstraint(Sketcher.Constraint("DistanceX", -1, 1, 0, 3, 43.0))
sketch4.addConstraint(Sketcher.Constraint("DistanceY", -1, 1, 0, 3, 20.0))
sketch4.addConstraint(Sketcher.Constraint("DistanceY", 3, 3, -1, 1, 40.0))
sketch4.addConstraint(Sketcher.Constraint("DistanceY", 4, 3, -1, 1, 60.0))
pocket3 = body.newObject("PartDesign::Pocket", "Pocket002")
pocket3.Profile = sketch4
pocket3.Length = 10

# Sketch on XZ plane
sketch5 = body.newObject("Sketcher::SketchObject", "Sketch004")
sketch5.AttachmentSupport = (doc.getObject("XZ_Plane"), [""])
sketch5.MapMode = "FlatFace"
add_polygon(sketch5, [(-46, -66), (-46, -134), (46, -134), (46, -66)])  # lines 0-3
sketch5.addConstraint(Sketcher.Constraint("Vertical", 0))
sketch5.addConstraint(Sketcher.Constraint("Horizontal", 1))
sketch5.addConstraint(Sketcher.Constraint("Vertical", 2))
sketch5.addConstraint(Sketcher.Constraint("Horizontal", 3))
sketch5.addConstraint(Sketcher.Constraint("DistanceX", 1, 1, 1, 2, 92.0))
sketch5.addConstraint(Sketcher.Constraint("DistanceX", 0, 2, -1, 1, 46.0))
sketch5.addConstraint(Sketcher.Constraint("DistanceY", 0, 2, 0, 1, 68.528072))
sketch5.addConstraint(Sketcher.Constraint("DistanceY", 0, 2, -1, 1, 134.45576))
pocket4 = body.newObject("PartDesign::Pocket", "Pocket003")
pocket4.Profile = sketch5
pocket4.Length = 4

# Sketch on XZ plane
sketch6 = body.newObject("Sketcher::SketchObject", "Sketch005")
sketch6.AttachmentSupport = (doc.getObject("XZ_Plane"), [""])
sketch6.MapMode = "FlatFace"
sketch6.AttachmentOffset = App.Placement(V(0, 0, -1.5), App.Rotation())
add_polygon(sketch6, [(-41, -66), (-41, -55), (41, -55), (41, -66)])  # lines 0-3
sketch6.addConstraint(Sketcher.Constraint("Vertical", 0))
sketch6.addConstraint(Sketcher.Constraint("Horizontal", 1))
sketch6.addConstraint(Sketcher.Constraint("Vertical", 2))
sketch6.addConstraint(Sketcher.Constraint("Horizontal", 3))
sketch6.addConstraint(Sketcher.Constraint("DistanceX", 1, 1, 1, 2, 82.0))
sketch6.addConstraint(Sketcher.Constraint("DistanceX", 0, 2, -1, 1, 41.0))
sketch6.addConstraint(Sketcher.Constraint("DistanceY", 0, 1, 0, 2, 10.813052))
sketch6.addConstraint(Sketcher.Constraint("DistanceY", 2, 2, -1, 1, 65.927689))
pocket5 = body.newObject("PartDesign::Pocket", "Pocket004")
pocket5.Profile = sketch6
pocket5.Length = 10
pocket5.Reversed = True
doc.recompute()

fillet4 = body.newObject("PartDesign::Fillet", "Fillet003")
fillet4.Base = (pocket5, edges_at(pocket5, [(-46, 0.75, -131.667), (46, 0.75, -131.667)]))
fillet4.Radius = 10

# Sketch on XZ plane
sketch7 = body.newObject("Sketcher::SketchObject", "Sketch006")
sketch7.AttachmentSupport = (doc.getObject("XZ_Plane"), [""])
sketch7.MapMode = "FlatFace"
sketch7.addGeometry(Part.Circle(V(-85.4, 35, 0), V(0, 0, 1), 1.6), False)
sketch7.addGeometry(Part.Circle(V(-85.4, 133.6, 0), V(0, 0, 1), 1.6), False)
sketch7.addGeometry(Part.Circle(V(-115.7, 95, 0), V(0, 0, 1), 1.6), False)
sketch7.addGeometry(Part.Circle(V(55, 95, 0), V(0, 0, 1), 1.6), False)
sketch7.addGeometry(Part.Circle(V(115.7, 95, 0), V(0, 0, 1), 1.6), False)
sketch7.addGeometry(Part.Circle(V(85.4, 35, 0), V(0, 0, 1), 1.6), False)
sketch7.addGeometry(Part.Circle(V(85.4, -133.6, 0), V(0, 0, 1), 1.6), False)
sketch7.addGeometry(Part.Circle(V(115.7, -95, 0), V(0, 0, 1), 1.6), False)
sketch7.addGeometry(Part.Circle(V(55, -95, 0), V(0, 0, 1), 1.6), False)
sketch7.addGeometry(Part.Circle(V(85.4, -35, 0), V(0, 0, 1), 1.6), False)
sketch7.addGeometry(Part.Circle(V(-85.4, -35, 0), V(0, 0, 1), 1.6), False)
sketch7.addGeometry(Part.Circle(V(-55, -95, 0), V(0, 0, 1), 1.6), False)
sketch7.addGeometry(Part.Circle(V(-115.7, -95, 0), V(0, 0, 1), 1.6), False)
sketch7.addGeometry(Part.Circle(V(-85.4, -133.6, 0), V(0, 0, 1), 1.6), False)
sketch7.addConstraint(Sketcher.Constraint("Equal", 0, 1))
sketch7.addConstraint(Sketcher.Constraint("Equal", 1, 2))
sketch7.addConstraint(Sketcher.Constraint("Equal", 2, 3))
sketch7.addConstraint(Sketcher.Constraint("Equal", 3, 4))
sketch7.addConstraint(Sketcher.Constraint("Equal", 4, 5))
sketch7.addConstraint(Sketcher.Constraint("Equal", 5, 6))
sketch7.addConstraint(Sketcher.Constraint("Equal", 6, 7))
sketch7.addConstraint(Sketcher.Constraint("Equal", 7, 8))
sketch7.addConstraint(Sketcher.Constraint("Equal", 8, 9))
sketch7.addConstraint(Sketcher.Constraint("Equal", 9, 10))
sketch7.addConstraint(Sketcher.Constraint("Equal", 10, 11))
sketch7.addConstraint(Sketcher.Constraint("Equal", 11, 12))
sketch7.addConstraint(Sketcher.Constraint("Equal", 12, 13))
sketch7.addConstraint(Sketcher.Constraint("Symmetric", 1, 3, 6, 3, -1, 1))
sketch7.addConstraint(Sketcher.Constraint("Symmetric", 2, 3, 7, 3, -1, 1))
sketch7.addConstraint(Sketcher.Constraint("Symmetric", 0, 3, 9, 3, -1, 1))
sketch7.addConstraint(Sketcher.Constraint("Symmetric", 5, 3, 10, 3, -1, 1))
sketch7.addConstraint(Sketcher.Constraint("Symmetric", 3, 3, 11, 3, -1, 1))
sketch7.addConstraint(Sketcher.Constraint("Symmetric", 4, 3, 12, 3, -1, 1))
sketch7.addConstraint(Sketcher.Constraint("Symmetric", 2, 3, 4, 3, -2))
sketch7.addConstraint(Sketcher.Constraint("Symmetric", 0, 3, 5, 3, -2))
sketch7.addConstraint(Sketcher.Constraint("Symmetric", 8, 3, 11, 3, -2))
sketch7.addConstraint(Sketcher.Constraint("Symmetric", 6, 3, 13, 3, -2))
sketch7.addConstraint(Sketcher.Constraint("Horizontal", 2, 3, 3, 3))
sketch7.addConstraint(Sketcher.Constraint("Vertical", 0, 3, 1, 3))
sketch7.addConstraint(Sketcher.Constraint("Diameter", 0, 3.2))
sketch7.addConstraint(Sketcher.Constraint("DistanceY", -1, 1, 0, 3, 35.0))
sketch7.addConstraint(Sketcher.Constraint("DistanceY", -1, 1, 2, 3, 95.0))
sketch7.addConstraint(Sketcher.Constraint("DistanceX", -1, 1, 3, 3, 55.0))
sketch7.addConstraint(Sketcher.Constraint("DistanceX", 0, 3, -1, 1, 85.36))
sketch7.addConstraint(Sketcher.Constraint("DistanceY", -1, 1, 1, 3, 133.58))
sketch7.addConstraint(Sketcher.Constraint("DistanceX", 2, 3, -1, 1, 115.72))
pocket6 = body.newObject("PartDesign::Pocket", "Pocket005")
pocket6.Profile = sketch7
pocket6.Length = 10

# Sketch on XZ plane
sketch8 = body.newObject("Sketcher::SketchObject", "Sketch007")
sketch8.AttachmentSupport = (doc.getObject("XZ_Plane"), [""])
sketch8.MapMode = "FlatFace"
sketch8.addGeometry(Part.Circle(V(-55, 95, 0), V(0, 0, 1), 1.6), False)
sketch8.addConstraint(Sketcher.Constraint("Diameter", 0, 3.2))
sketch8.addConstraint(Sketcher.Constraint("DistanceX", 0, 3, -1, 1, 55.0))
sketch8.addConstraint(Sketcher.Constraint("DistanceY", -1, 1, 0, 3, 95.0))
pocket7 = body.newObject("PartDesign::Pocket", "Pocket006")
pocket7.Profile = sketch8
pocket7.Length = 10

doc.recompute()
